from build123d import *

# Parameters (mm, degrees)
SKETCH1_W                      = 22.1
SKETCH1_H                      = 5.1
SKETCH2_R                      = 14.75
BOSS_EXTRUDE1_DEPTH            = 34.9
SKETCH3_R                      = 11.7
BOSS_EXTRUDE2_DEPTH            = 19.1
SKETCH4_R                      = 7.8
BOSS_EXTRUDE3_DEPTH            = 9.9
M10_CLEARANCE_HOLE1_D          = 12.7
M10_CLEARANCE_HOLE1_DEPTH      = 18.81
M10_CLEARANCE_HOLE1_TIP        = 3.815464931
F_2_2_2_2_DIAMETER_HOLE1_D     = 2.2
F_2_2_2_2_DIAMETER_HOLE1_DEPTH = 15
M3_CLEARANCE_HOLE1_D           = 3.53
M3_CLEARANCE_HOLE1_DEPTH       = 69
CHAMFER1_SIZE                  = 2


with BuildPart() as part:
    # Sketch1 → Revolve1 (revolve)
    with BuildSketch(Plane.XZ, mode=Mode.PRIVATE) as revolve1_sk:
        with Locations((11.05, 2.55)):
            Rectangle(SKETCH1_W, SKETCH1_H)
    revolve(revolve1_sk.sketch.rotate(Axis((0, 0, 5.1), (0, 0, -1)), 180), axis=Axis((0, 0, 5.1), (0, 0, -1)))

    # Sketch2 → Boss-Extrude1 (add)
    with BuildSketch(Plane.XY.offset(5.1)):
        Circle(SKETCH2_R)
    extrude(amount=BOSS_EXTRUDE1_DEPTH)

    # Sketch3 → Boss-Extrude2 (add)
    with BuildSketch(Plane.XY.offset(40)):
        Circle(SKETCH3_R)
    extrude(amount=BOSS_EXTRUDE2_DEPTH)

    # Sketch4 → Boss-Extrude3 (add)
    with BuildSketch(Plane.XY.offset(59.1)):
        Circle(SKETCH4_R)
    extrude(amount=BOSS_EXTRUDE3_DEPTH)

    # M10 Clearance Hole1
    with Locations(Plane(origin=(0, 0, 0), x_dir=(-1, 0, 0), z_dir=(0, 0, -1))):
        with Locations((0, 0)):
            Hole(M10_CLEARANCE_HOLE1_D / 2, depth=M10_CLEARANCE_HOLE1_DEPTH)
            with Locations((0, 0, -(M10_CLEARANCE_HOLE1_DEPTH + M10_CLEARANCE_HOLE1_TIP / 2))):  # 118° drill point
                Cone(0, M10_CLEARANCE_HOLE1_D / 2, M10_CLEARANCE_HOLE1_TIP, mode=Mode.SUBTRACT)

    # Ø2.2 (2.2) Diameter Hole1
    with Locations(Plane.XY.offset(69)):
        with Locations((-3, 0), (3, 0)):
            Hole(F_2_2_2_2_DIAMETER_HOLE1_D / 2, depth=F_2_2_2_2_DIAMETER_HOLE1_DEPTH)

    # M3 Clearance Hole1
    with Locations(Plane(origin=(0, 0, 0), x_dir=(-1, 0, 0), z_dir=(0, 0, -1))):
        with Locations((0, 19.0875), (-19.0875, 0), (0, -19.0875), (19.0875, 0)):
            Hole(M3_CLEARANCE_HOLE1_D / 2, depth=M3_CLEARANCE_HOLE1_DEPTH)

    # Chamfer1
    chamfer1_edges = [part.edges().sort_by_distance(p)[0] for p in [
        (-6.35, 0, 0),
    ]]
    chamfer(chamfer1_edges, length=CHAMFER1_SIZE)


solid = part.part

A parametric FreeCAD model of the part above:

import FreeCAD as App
import Part
import Sketcher
from FreeCAD import Vector
Q = App.Units.Quantity


def edges_at(feature, points):
    """Names of the edges that pass closest to the given points."""
    edges = feature.Shape.Edges
    near = lambda p: min(range(len(edges)), key=lambda i: edges[i].distToShape(Part.Vertex(*p))[0])
    return sorted({f"Edge{near(p) + 1}" for p in points})


def add_polygon(sketch, points):
    """Adds a closed chain of lines whose ends are joined by coincident constraints."""
    first, n = sketch.GeometryCount, len(points)
    for a, b in zip(points, points[1:] + points[:1]):
        sketch.addGeometry(Part.LineSegment(App.Vector(*a, 0), App.Vector(*b, 0)), False)
    for i in range(n):
        sketch.addConstraint(Sketcher.Constraint("Coincident", first + i, 2, first + (i + 1) % n, 1))

doc = App.newDocument("Part")
params = doc.addObject("Spreadsheet::Sheet", "Params")
for row, (alias, value) in enumerate([
    ("sketch1_width", "22.1 mm"),
    ("sketch1_height", "5.1 mm"),
    ("revolution_angle", "360 deg"),
    ("sketch2_diameter", "29.5 mm"),
    ("pad1_length", "34.9 mm"),
    ("sketch3_diameter", "23.4 mm"),
    ("pad2_length", "19.1 mm"),
    ("sketch4_diameter", "15.6 mm"),
    ("pad3_length", "9.9 mm"),
    ("sketch5_diameter", "12.7 mm"),
    ("hole_diameter", "12.7 mm"),
    ("hole_depth", "18.81 mm"),
    ("sketch6_diameter", "2.2 mm"),
    ("hole2_diameter", "2.2 mm"),
    ("hole2_depth", "15 mm"),
    ("sketch7_diameter", "3.53 mm"),
    ("hole3_diameter", "3.53 mm"),
    ("hole3_depth", "69 mm"),
    ("chamfer_size", "2 mm"),
], start=1):
    params.set(f"A{row}", alias)
    params.set(f"B{row}", "=" + value)
    params.setAlias(f"B{row}", alias)

body = doc.addObject("PartDesign::Body", "Body")

sketch1 = doc.addObject("Sketcher::SketchObject", "Sketch")
body.addObject(sketch1)
sketch1.AttachmentSupport = (doc.XZ_Plane, [""])
sketch1.MapMode = "FlatFace"
add_polygon(sketch1, [(0, 5), (0, 0), (22, 0), (22, 5)])
sketch1.addConstraint([
    Sketcher.Constraint("Vertical", 0),
    Sketcher.Constraint("Horizontal", 1),
    Sketcher.Constraint("Vertical", 2),
    Sketcher.Constraint("Horizontal", 3),
    Sketcher.Constraint("Coincident", 0, 2, -1, 1),
    Sketcher.Constraint("DistanceX", 1, 1, 1, 2, Q("22.1 mm")),
    Sketcher.Constraint("DistanceY", 0, 2, 0, 1, Q("5.1 mm")),
])
sketch1.setExpression("Constraints[9]", "Params.sketch1_width")
sketch1.setExpression("Constraints[10]", "Params.sketch1_height")
revolution = doc.addObject("PartDesign::Revolution", "Revolution")
body.addObject(revolution)
revolution.Profile = sketch1
revolution.ReferenceAxis = (sketch1, ["V_Axis"])
revolution.setExpression("Angle", "Params.revolution_angle")

sketch2 = doc.addObject("Sketcher::SketchObject", "Sketch001")
body.addObject(sketch2)
sketch2.AttachmentSupport = (doc.XY_Plane, [""])
sketch2.MapMode = "FlatFace"
sketch2.AttachmentOffset = App.Placement(Vector(0, 0, 5.1), App.Rotation())
sketch2.addGeometry(Part.Circle(Vector(0, 0, 0), Vector(0, 0, 1), 15), False)
sketch2.addConstraint([
    Sketcher.Constraint("Coincident", 0, 3, -1, 1),
    Sketcher.Constraint("Diameter", 0, Q("29.5 mm")),
])
sketch2.setExpression("Constraints[1]", "Params.sketch2_diameter")
pad1 = doc.addObject("PartDesign::Pad", "Pad")
body.addObject(pad1)
pad1.Profile = sketch2
pad1.setExpression("Length", "Params.pad1_length")

sketch3 = doc.addObject("Sketcher::SketchObject", "Sketch002")
body.addObject(sketch3)
sketch3.AttachmentSupport = (doc.XY_Plane, [""])
sketch3.MapMode = "FlatFace"
sketch3.AttachmentOffset = App.Placement(Vector(0, 0, 40), App.Rotation())
sketch3.addGeometry(Part.Circle(Vector(0, 0, 0), Vector(0, 0, 1), 12), False)
sketch3.addConstraint([
    Sketcher.Constraint("Coincident", 0, 3, -1, 1),
    Sketcher.Constraint("Diameter", 0, Q("23.4 mm")),
])
sketch3.setExpression("Constraints[1]", "Params.sketch3_diameter")
pad2 = doc.addObject("PartDesign::Pad", "Pad001")
body.addObject(pad2)
pad2.Profile = sketch3
pad2.setExpression("Length", "Params.pad2_length")

sketch4 = doc.addObject("Sketcher::SketchObject", "Sketch003")
body.addObject(sketch4)
sketch4.AttachmentSupport = (doc.XY_Plane, [""])
sketch4.MapMode = "FlatFace"
sketch4.AttachmentOffset = App.Placement(Vector(0, 0, 59.1), App.Rotation())
sketch4.addGeometry(Part.Circle(Vector(0, 0, 0), Vector(0, 0, 1), 8), False)
sketch4.addConstraint([
    Sketcher.Constraint("Coincident", 0, 3, -1, 1),
    Sketcher.Constraint("Diameter", 0, Q("15.6 mm")),
])
sketch4.setExpression("Constraints[1]", "Params.sketch4_diameter")
pad3 = doc.addObject("PartDesign::Pad", "Pad002")
body.addObject(pad3)
pad3.Profile = sketch4
pad3.setExpression("Length", "Params.pad3_length")

sketch5 = doc.addObject("Sketcher::SketchObject", "Sketch004")
body.addObject(sketch5)
sketch5.AttachmentSupport = (doc.XY_Plane, [""])
sketch5.MapMode = "FlatFace"
sketch5.addGeometry(Part.Circle(Vector(0, 0, 0), Vector(0, 0, 1), 6), False)
sketch5.addConstraint([
    Sketcher.Constraint("Coincident", 0, 3, -1, 1),
    Sketcher.Constraint("Diameter", 0, Q("12.7 mm")),
])
sketch5.setExpression("Constraints[1]", "Params.sketch5_diameter")
doc.recompute()
hole = doc.addObject("PartDesign::Hole", "Hole")
body.addObject(hole)
hole.Profile = sketch5
hole.ThreadType = "None"
hole.setExpression("Diameter", "Params.hole_diameter")
hole.DepthType = "Dimension"
hole.setExpression("Depth", "Params.hole_depth")
hole.DrillPoint = "Angled"
hole.DrillPointAngle = 118
hole.Reversed = True

sketch6 = doc.addObject("Sketcher::SketchObject", "Sketch005")
body.addObject(sketch6)
sketch6.AttachmentSupport = (doc.XY_Plane, [""])
sketch6.MapMode = "FlatFace"
sketch6.AttachmentOffset = App.Placement(Vector(0, 0, 69), App.Rotation())
sketch6.addGeometry([
    Part.Circle(Vector(-3, 0, 0), Vector(0, 0, 1), 1.1),
    Part.Circle(Vector(3, 0, 0), Vector(0, 0, 1), 1.1),
], False)
sketch6.addConstraint([
    Sketcher.Constraint("Equal", 0, 1),
    Sketcher.Constraint("Symmetric", 0, 3, 1, 3, -1, 1),
    Sketcher.Constraint("PointOnObject", 0, 3, -1),
    Sketcher.Constraint("Diameter", 0, Q("2.2 mm")),
    Sketcher.Constraint("DistanceX", 0, 3, -1, 1, Q("3 mm")),
])
sketch6.setExpression("Constraints[3]", "Params.sketch6_diameter")
doc.recompute()
hole2 = doc.addObject("PartDesign::Hole", "Hole001")
body.addObject(hole2)
hole2.Profile = sketch6
hole2.ThreadType = "None"
hole2.setExpression("Diameter", "Params.hole2_diameter")
hole2.DepthType = "Dimension"
hole2.setExpression("Depth", "Params.hole2_depth")
hole2.DrillPoint = "Flat"

sketch7 = doc.addObject("Sketcher::SketchObject", "Sketch006")
body.addObject(sketch7)
sketch7.AttachmentSupport = (doc.XY_Plane, [""])
sketch7.MapMode = "FlatFace"
sketch7.addGeometry([
    Part.Circle(Vector(0, 19.1, 0), Vector(0, 0, 1), 1.8),
    Part.Circle(Vector(19.1, 0, 0), Vector(0, 0, 1), 1.8),
    Part.Circle(Vector(0, -19.1, 0), Vector(0, 0, 1), 1.8),
    Part.Circle(Vector(-19.1, 0, 0), Vector(0, 0, 1), 1.8),
], False)
sketch7.addConstraint([
    Sketcher.Constraint("Equal", 0, 1),
    Sketcher.Constraint("Equal", 1, 2),
    Sketcher.Constraint("Equal", 2, 3),
    Sketcher.Constraint("Symmetric", 0, 3, 2, 3, -1, 1),
    Sketcher.Constraint("Symmetric", 1, 3, 3, 3, -1, 1),
    Sketcher.Constraint("PointOnObject", 0, 3, -2),
    Sketcher.Constraint("PointOnObject", 1, 3, -1),
    Sketcher.Constraint("Diameter", 0, Q("3.53 mm")),
    Sketcher.Constraint("DistanceY", 2, 3, 0, 3, Q("38.175 mm")),
    Sketcher.Constraint("DistanceX", 3, 3, 1, 3, Q("38.175 mm")),
])
sketch7.setExpression("Constraints[7]", "Params.sketch7_diameter")
doc.recompute()
hole3 = doc.addObject("PartDesign::Hole", "Hole002")
body.addObject(hole3)
hole3.Profile = sketch7
hole3.ThreadType = "None"
hole3.setExpression("Diameter", "Params.hole3_diameter")
hole3.DepthType = "Dimension"
hole3.setExpression("Depth", "Params.hole3_depth")
hole3.DrillPoint = "Flat"
hole3.Reversed = True
doc.recompute()

chamfer = doc.addObject("PartDesign::Chamfer", "Chamfer")
body.addObject(chamfer)
chamfer.Base = (hole3, edges_at(hole3, [(-6.35, 0, 0)]))
chamfer.setExpression("Size", "Params.chamfer_size")

doc.recompute()
